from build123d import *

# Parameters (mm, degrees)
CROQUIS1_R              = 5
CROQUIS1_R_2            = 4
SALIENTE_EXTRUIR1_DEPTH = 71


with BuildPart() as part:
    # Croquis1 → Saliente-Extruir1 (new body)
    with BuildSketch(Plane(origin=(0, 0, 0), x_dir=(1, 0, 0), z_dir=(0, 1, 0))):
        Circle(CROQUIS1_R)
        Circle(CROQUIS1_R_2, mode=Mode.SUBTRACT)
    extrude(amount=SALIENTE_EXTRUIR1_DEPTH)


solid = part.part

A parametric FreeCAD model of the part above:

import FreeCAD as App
import Part
import Sketcher
Q = App.Units.Quantity

doc = App.newDocument("Part")
body = doc.addObject("PartDesign::Body", "Body")

# Sketch on XZ plane
sketch1 = body.newObject("Sketcher::SketchObject", "Sketch")
sketch1.AttachmentSupport = (doc.getObject("XZ_Plane"), [""])
sketch1.MapMode = "FlatFace"
sketch1.addGeometry(Part.Circle(App.Vector(0, 0, 0), App.Vector(0, 0, 1), 5), False)
sketch1.addGeometry(Part.Circle(App.Vector(0, 0, 0), App.Vector(0, 0, 1), 4), False)
sketch1.addConstraint(Sketcher.Constraint("Coincident", 0, 3, -1, 1))
sketch1.addConstraint(Sketcher.Constraint("Coincident", 1, 3, -1, 1))
sketch1.addConstraint(Sketcher.Constraint("Diameter", 0, Q("10 mm")))
sketch1.addConstraint(Sketcher.Constraint("Diameter", 1, Q("8 mm")))
pad1 = body.newObject("PartDesign::Pad", "Pad")
pad1.Profile = sketch1
pad1.Length = 71
pad1.Reversed = True

doc.recompute()
